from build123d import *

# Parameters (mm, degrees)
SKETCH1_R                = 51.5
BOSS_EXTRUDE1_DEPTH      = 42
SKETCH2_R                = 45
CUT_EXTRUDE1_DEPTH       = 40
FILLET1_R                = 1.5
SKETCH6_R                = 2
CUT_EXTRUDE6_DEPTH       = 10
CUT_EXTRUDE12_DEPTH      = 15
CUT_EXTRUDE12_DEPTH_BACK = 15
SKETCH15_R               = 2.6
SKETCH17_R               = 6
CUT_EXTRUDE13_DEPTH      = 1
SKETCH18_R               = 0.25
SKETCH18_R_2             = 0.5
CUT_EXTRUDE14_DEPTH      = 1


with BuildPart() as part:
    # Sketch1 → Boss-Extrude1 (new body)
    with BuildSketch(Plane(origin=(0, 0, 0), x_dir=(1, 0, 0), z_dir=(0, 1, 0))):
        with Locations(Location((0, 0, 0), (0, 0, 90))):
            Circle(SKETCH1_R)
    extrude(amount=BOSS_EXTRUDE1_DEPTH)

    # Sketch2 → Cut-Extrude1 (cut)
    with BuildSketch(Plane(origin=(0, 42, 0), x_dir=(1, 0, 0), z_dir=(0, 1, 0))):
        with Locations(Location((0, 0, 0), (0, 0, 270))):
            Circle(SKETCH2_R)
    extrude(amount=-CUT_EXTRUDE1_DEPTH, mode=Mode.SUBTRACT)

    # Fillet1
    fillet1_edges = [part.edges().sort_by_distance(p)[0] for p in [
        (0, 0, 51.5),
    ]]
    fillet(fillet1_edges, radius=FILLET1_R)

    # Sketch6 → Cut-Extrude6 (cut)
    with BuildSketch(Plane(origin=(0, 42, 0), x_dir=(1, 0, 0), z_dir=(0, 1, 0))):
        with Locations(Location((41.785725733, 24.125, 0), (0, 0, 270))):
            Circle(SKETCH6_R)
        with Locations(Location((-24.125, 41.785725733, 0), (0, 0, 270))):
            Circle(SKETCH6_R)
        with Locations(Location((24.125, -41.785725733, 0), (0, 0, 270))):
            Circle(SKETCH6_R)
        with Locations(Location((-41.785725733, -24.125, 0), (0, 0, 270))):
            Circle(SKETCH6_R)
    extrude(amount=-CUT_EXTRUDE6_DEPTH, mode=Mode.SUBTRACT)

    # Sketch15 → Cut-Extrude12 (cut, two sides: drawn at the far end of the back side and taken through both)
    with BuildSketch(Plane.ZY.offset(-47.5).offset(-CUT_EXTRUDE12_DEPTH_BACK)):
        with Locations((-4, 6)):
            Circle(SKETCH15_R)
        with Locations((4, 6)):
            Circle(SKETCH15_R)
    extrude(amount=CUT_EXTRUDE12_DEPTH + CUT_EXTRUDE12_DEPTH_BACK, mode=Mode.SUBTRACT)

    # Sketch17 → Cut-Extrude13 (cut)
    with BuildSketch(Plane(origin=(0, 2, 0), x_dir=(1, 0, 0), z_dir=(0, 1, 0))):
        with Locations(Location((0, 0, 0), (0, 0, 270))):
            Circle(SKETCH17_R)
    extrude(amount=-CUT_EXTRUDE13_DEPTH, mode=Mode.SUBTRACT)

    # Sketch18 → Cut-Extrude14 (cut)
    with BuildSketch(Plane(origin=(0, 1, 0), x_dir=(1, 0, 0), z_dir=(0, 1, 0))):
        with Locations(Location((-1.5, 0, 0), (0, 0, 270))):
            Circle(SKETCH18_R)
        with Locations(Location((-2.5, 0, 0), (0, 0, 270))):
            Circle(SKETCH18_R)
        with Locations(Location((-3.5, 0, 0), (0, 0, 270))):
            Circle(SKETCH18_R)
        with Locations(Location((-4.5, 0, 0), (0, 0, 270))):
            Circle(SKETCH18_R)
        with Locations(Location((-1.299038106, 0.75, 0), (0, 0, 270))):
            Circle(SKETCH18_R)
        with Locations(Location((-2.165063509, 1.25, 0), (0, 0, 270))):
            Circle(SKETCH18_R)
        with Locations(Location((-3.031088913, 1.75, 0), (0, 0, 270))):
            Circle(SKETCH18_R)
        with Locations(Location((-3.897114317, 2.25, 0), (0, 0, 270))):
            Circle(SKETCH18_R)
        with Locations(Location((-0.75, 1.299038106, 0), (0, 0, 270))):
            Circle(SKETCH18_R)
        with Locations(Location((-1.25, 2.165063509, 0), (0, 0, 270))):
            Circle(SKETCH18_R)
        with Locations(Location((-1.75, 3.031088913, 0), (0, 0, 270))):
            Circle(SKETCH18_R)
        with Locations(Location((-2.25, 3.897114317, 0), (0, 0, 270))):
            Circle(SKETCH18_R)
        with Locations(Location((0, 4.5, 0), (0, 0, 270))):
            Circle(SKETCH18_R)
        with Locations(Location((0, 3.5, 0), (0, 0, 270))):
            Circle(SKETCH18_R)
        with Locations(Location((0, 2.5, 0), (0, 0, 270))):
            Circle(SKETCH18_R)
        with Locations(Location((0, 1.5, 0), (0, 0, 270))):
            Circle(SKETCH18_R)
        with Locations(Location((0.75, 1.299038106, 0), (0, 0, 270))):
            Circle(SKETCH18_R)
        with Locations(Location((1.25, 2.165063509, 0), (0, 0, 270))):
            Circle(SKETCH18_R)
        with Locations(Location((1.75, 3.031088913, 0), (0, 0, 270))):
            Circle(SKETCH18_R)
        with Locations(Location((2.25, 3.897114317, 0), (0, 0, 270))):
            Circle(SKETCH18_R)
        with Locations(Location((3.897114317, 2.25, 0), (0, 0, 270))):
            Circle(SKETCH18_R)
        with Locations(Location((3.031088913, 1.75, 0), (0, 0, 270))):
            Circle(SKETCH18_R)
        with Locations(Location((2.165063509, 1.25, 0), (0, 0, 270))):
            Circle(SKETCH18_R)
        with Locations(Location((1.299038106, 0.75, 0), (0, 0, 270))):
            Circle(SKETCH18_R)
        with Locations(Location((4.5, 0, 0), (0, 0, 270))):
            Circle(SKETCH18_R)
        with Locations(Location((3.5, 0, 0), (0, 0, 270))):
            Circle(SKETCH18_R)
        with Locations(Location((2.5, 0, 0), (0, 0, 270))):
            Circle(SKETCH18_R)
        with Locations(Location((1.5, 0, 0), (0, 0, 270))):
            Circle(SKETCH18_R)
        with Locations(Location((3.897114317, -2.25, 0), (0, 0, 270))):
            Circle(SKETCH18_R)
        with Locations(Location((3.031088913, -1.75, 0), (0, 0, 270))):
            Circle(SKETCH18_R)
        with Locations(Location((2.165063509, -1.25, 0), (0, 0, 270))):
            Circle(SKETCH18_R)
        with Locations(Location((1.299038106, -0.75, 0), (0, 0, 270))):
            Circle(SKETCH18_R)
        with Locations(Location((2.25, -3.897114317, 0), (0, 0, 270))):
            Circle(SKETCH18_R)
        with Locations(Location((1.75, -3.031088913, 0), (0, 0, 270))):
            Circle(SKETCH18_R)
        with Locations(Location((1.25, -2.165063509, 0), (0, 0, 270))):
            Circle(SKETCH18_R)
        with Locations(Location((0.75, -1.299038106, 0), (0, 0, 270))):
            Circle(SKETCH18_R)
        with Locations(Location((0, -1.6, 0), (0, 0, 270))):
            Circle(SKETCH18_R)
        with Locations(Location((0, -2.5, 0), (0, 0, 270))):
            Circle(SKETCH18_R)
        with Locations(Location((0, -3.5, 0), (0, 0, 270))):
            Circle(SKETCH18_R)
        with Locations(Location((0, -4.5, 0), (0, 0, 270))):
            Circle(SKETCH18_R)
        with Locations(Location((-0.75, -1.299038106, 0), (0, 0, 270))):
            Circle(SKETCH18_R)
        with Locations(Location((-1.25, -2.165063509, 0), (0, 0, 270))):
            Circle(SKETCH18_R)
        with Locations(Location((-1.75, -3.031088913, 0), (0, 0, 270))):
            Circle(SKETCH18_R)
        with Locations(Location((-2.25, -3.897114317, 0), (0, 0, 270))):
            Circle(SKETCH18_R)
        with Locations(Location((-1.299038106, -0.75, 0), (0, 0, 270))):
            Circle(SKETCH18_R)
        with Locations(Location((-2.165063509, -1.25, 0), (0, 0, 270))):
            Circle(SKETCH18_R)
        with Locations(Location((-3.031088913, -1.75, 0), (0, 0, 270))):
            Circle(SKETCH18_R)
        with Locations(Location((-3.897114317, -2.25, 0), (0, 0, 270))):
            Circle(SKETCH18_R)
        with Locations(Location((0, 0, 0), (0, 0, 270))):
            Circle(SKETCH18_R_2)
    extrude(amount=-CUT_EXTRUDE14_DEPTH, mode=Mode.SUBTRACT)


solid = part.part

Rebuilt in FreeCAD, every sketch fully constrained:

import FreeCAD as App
import Part
import Sketcher

V = App.Vector


def edges_at(feature, points):
    """Names of the edges that pass closest to the given points."""
    edges = feature.Shape.Edges
    near = lambda p: min(range(len(edges)), key=lambda i: edges[i].distToShape(Part.Vertex(*p))[0])
    return sorted({f"Edge{near(p) + 1}" for p in points})

doc = App.newDocument("Part")
params = doc.addObject("Spreadsheet::Sheet", "Params")
for row, (alias, value) in enumerate([
    ("sketch1_diameter", "103 mm"),
    ("pad1_length", "42 mm"),
    ("sketch2_diameter", "90 mm"),
    ("pocket1_length", "40 mm"),
    ("fillet_radius", "1.5 mm"),
    ("sketch3_diameter", "4 mm"),
    ("pocket2_length", "10 mm"),
    ("sketch4_diameter", "5.2 mm"),
    ("pocket3_length", "15 mm"),
    ("pocket3_length2", "15 mm"),
    ("sketch5_diameter", "12 mm"),
    ("pocket4_length", "1 mm"),
    ("sketch6_diameter", "1 mm"),
    ("sketch6_diameter2", "0.5 mm"),
    ("pocket5_length", "1 mm"),
], start=1):
    params.set(f"A{row}", alias)
    params.set(f"B{row}", "=" + value)
    params.setAlias(f"B{row}", alias)

body = doc.addObject("PartDesign::Body", "Body")

# Sketch on XZ plane
sketch1 = doc.addObject("Sketcher::SketchObject", "Sketch")
body.addObject(sketch1)
sketch1.AttachmentSupport = (doc.XZ_Plane, [""])
sketch1.MapMode = "FlatFace"
sketch1.addGeometry(Part.Circle(V(0, 0, 0), V(0, 0, 1), 52), False)
sketch1.addConstraint([
    Sketcher.Constraint("Coincident", 0, 3, -1, 1),
    Sketcher.Constraint("Diameter", 0, 103.0),
])
sketch1.setExpression("Constraints[1]", "Params.sketch1_diameter")
pad1 = doc.addObject("PartDesign::Pad", "Pad")
body.addObject(pad1)
pad1.Profile = sketch1
pad1.setExpression("Length", "Params.pad1_length")
pad1.Reversed = True

# Sketch on XZ plane
sketch2 = doc.addObject("Sketcher::SketchObject", "Sketch001")
body.addObject(sketch2)
sketch2.AttachmentSupport = (doc.XZ_Plane, [""])
sketch2.MapMode = "FlatFace"
sketch2.AttachmentOffset = App.Placement(V(0, 0, -42), App.Rotation())
sketch2.addGeometry(Part.Circle(V(0, 0, 0), V(0, 0, 1), 45), False)
sketch2.addConstraint([
    Sketcher.Constraint("Coincident", 0, 3, -1, 1),
    Sketcher.Constraint("Diameter", 0, 90.0),
])
sketch2.setExpression("Constraints[1]", "Params.sketch2_diameter")
pocket1 = doc.addObject("PartDesign::Pocket", "Pocket")
body.addObject(pocket1)
pocket1.Profile = sketch2
pocket1.setExpression("Length", "Params.pocket1_length")
pocket1.Reversed = True
doc.recompute()

fillet = doc.addObject("PartDesign::Fillet", "Fillet")
body.addObject(fillet)
fillet.Base = (pocket1, edges_at(pocket1, [(0, 0, 51.5)]))
fillet.setExpression("Radius", "Params.fillet_radius")

# Sketch on XZ plane
sketch3 = doc.addObject("Sketcher::SketchObject", "Sketch002")
body.addObject(sketch3)
sketch3.AttachmentSupport = (doc.XZ_Plane, [""])
sketch3.MapMode = "FlatFace"
sketch3.AttachmentOffset = App.Placement(V(0, 0, -42), App.Rotation())
sketch3.addGeometry([
    Part.Circle(V(41.8, -24.1, 0), V(0, 0, 1), 2),
    Part.Circle(V(-24.1, -41.8, 0), V(0, 0, 1), 2),
    Part.Circle(V(24.1, 41.8, 0), V(0, 0, 1), 2),
    Part.Circle(V(-41.8, 24.1, 0), V(0, 0, 1), 2),
], False)
sketch3.addConstraint([
    Sketcher.Constraint("Equal", 0, 1),
    Sketcher.Constraint("Equal", 1, 2),
    Sketcher.Constraint("Equal", 2, 3),
    Sketcher.Constraint("Symmetric", 1, 3, 2, 3, -1, 1),
    Sketcher.Constraint("Symmetric", 0, 3, 3, 3, -1, 1),
    Sketcher.Constraint("Diameter", 0, 4.0),
    Sketcher.Constraint("DistanceX", 1, 3, 2, 3, 48.25),
    Sketcher.Constraint("DistanceY", 0, 3, 3, 3, 48.25),
    Sketcher.Constraint("DistanceY", 1, 3, 2, 3, 83.571451),
    Sketcher.Constraint("DistanceX", 3, 3, 0, 3, 83.571451),
])
sketch3.setExpression("Constraints[5]", "Params.sketch3_diameter")
pocket2 = doc.addObject("PartDesign::Pocket", "Pocket001")
body.addObject(pocket2)
pocket2.Profile = sketch3
pocket2.setExpression("Length", "Params.pocket2_length")
pocket2.Reversed = True

# Sketch on YZ plane
sketch4 = doc.addObject("Sketcher::SketchObject", "Sketch003")
body.addObject(sketch4)
sketch4.AttachmentSupport = (doc.YZ_Plane, [""])
sketch4.MapMode = "FlatFace"
sketch4.AttachmentOffset = App.Placement(V(0, 0, 47.5), App.Rotation())
sketch4.addGeometry([
    Part.Circle(V(6, -4, 0), V(0, 0, 1), 2.6),
    Part.Circle(V(6, 4, 0), V(0, 0, 1), 2.6),
], False)
sketch4.addConstraint([
    Sketcher.Constraint("Equal", 0, 1),
    Sketcher.Constraint("Symmetric", 0, 3, 1, 3, -1),
    Sketcher.Constraint("Diameter", 0, 5.2),
    Sketcher.Constraint("DistanceX", -1, 1, 0, 3, 6.0),
    Sketcher.Constraint("DistanceY", 0, 3, -1, 1, 4.0),
])
sketch4.setExpression("Constraints[2]", "Params.sketch4_diameter")
pocket3 = doc.addObject("PartDesign::Pocket", "Pocket002")
body.addObject(pocket3)
pocket3.Profile = sketch4
pocket3.Type = "TwoLengths"
pocket3.setExpression("Length", "Params.pocket3_length")
pocket3.setExpression("Length2", "Params.pocket3_length2")

# Sketch on XZ plane
sketch5 = doc.addObject("Sketcher::SketchObject", "Sketch004")
body.addObject(sketch5)
sketch5.AttachmentSupport = (doc.XZ_Plane, [""])
sketch5.MapMode = "FlatFace"
sketch5.AttachmentOffset = App.Placement(V(0, 0, -2), App.Rotation())
sketch5.addGeometry(Part.Circle(V(0, 0, 0), V(0, 0, 1), 6), False)
sketch5.addConstraint([
    Sketcher.Constraint("Coincident", 0, 3, -1, 1),
    Sketcher.Constraint("Diameter", 0, 12.0),
])
sketch5.setExpression("Constraints[1]", "Params.sketch5_diameter")
pocket4 = doc.addObject("PartDesign::Pocket", "Pocket003")
body.addObject(pocket4)
pocket4.Profile = sketch5
pocket4.setExpression("Length", "Params.pocket4_length")
pocket4.Reversed = True

# Sketch on XZ plane
sketch6 = doc.addObject("Sketcher::SketchObject", "Sketch005")
body.addObject(sketch6)
sketch6.AttachmentSupport = (doc.XZ_Plane, [""])
sketch6.MapMode = "FlatFace"
sketch6.AttachmentOffset = App.Placement(V(0, 0, -1), App.Rotation())
sketch6.addGeometry([
    Part.Circle(V(-1.5, 0, 0), V(0, 0, 1), 0.25),  # 0
    Part.Circle(V(-2.5, 0, 0), V(0, 0, 1), 0.25),  # 1
    Part.Circle(V(-3.5, 0, 0), V(0, 0, 1), 0.25),  # 2
    Part.Circle(V(-4.5, 0, 0), V(0, 0, 1), 0.25),  # 3
    Part.Circle(V(-1.3, -0.75, 0), V(0, 0, 1), 0.25),  # 4
    Part.Circle(V(-2.17, -1.25, 0), V(0, 0, 1), 0.25),  # 5
    Part.Circle(V(-3.03, -1.75, 0), V(0, 0, 1), 0.25),  # 6
    Part.Circle(V(-3.9, -2.25, 0), V(0, 0, 1), 0.25),  # 7
    Part.Circle(V(-0.75, -1.3, 0), V(0, 0, 1), 0.25),  # 8
    Part.Circle(V(-1.25, -2.17, 0), V(0, 0, 1), 0.25),  # 9
    Part.Circle(V(-1.75, -3.03, 0), V(0, 0, 1), 0.25),  # 10
    Part.Circle(V(-2.25, -3.9, 0), V(0, 0, 1), 0.25),  # 11
    Part.Circle(V(0, -4.5, 0), V(0, 0, 1), 0.25),  # 12
    Part.Circle(V(0, -3.5, 0), V(0, 0, 1), 0.25),  # 13
    Part.Circle(V(0, -2.5, 0), V(0, 0, 1), 0.25),  # 14
    Part.Circle(V(0, -1.5, 0), V(0, 0, 1), 0.25),  # 15
    Part.Circle(V(0.75, -1.3, 0), V(0, 0, 1), 0.25),  # 16
    Part.Circle(V(1.25, -2.17, 0), V(0, 0, 1), 0.25),  # 17
    Part.Circle(V(1.75, -3.03, 0), V(0, 0, 1), 0.25),  # 18
    Part.Circle(V(2.25, -3.9, 0), V(0, 0, 1), 0.25),  # 19
    Part.Circle(V(3.9, -2.25, 0), V(0, 0, 1), 0.25),  # 20
    Part.Circle(V(3.03, -1.75, 0), V(0, 0, 1), 0.25),  # 21
    Part.Circle(V(2.17, -1.25, 0), V(0, 0, 1), 0.25),  # 22
    Part.Circle(V(1.3, -0.75, 0), V(0, 0, 1), 0.25),  # 23
    Part.Circle(V(4.5, 0, 0), V(0, 0, 1), 0.25),  # 24
    Part.Circle(V(3.5, 0, 0), V(0, 0, 1), 0.25),  # 25
    Part.Circle(V(2.5, 0, 0), V(0, 0, 1), 0.25),  # 26
    Part.Circle(V(1.5, 0, 0), V(0, 0, 1), 0.25),  # 27
    Part.Circle(V(3.9, 2.25, 0), V(0, 0, 1), 0.25),  # 28
    Part.Circle(V(3.03, 1.75, 0), V(0, 0, 1), 0.25),  # 29
    Part.Circle(V(2.17, 1.25, 0), V(0, 0, 1), 0.25),  # 30
    Part.Circle(V(1.3, 0.75, 0), V(0, 0, 1), 0.25),  # 31
    Part.Circle(V(2.25, 3.9, 0), V(0, 0, 1), 0.25),  # 32
    Part.Circle(V(1.75, 3.03, 0), V(0, 0, 1), 0.25),  # 33
    Part.Circle(V(1.25, 2.17, 0), V(0, 0, 1), 0.25),  # 34
    Part.Circle(V(0.75, 1.3, 0), V(0, 0, 1), 0.25),  # 35
    Part.Circle(V(0, 1.6, 0), V(0, 0, 1), 0.25),  # 36
    Part.Circle(V(0, 2.5, 0), V(0, 0, 1), 0.25),  # 37
    Part.Circle(V(0, 3.5, 0), V(0, 0, 1), 0.25),  # 38
    Part.Circle(V(0, 4.5, 0), V(0, 0, 1), 0.25),  # 39
    Part.Circle(V(-0.75, 1.3, 0), V(0, 0, 1), 0.25),  # 40
    Part.Circle(V(-1.25, 2.17, 0), V(0, 0, 1), 0.25),  # 41
    Part.Circle(V(-1.75, 3.03, 0), V(0, 0, 1), 0.25),  # 42
    Part.Circle(V(-2.25, 3.9, 0), V(0, 0, 1), 0.25),  # 43
    Part.Circle(V(-1.3, 0.75, 0), V(0, 0, 1), 0.25),  # 44
    Part.Circle(V(-2.17, 1.25, 0), V(0, 0, 1), 0.25),  # 45
    Part.Circle(V(-3.03, 1.75, 0), V(0, 0, 1), 0.25),  # 46
    Part.Circle(V(-3.9, 2.25, 0), V(0, 0, 1), 0.25),  # 47
    Part.Circle(V(0, 0, 0), V(0, 0, 1), 0.5),  # 48
], False)
sketch6.addConstraint([
    Sketcher.Constraint("Coincident", 48, 3, -1, 1),
    Sketcher.Constraint("Equal", 0, 1),
    Sketcher.Constraint("Equal", 1, 2),
    Sketcher.Constraint("Equal", 2, 3),
    Sketcher.Constraint("Equal", 3, 4),
    Sketcher.Constraint("Equal", 4, 5),
    Sketcher.Constraint("Equal", 5, 6),
    Sketcher.Constraint("Equal", 6, 7),
    Sketcher.Constraint("Equal", 7, 8),
    Sketcher.Constraint("Equal", 8, 9),
    Sketcher.Constraint("Equal", 9, 10),
    Sketcher.Constraint("Equal", 10, 11),
    Sketcher.Constraint("Equal", 11, 12),
    Sketcher.Constraint("Equal", 12, 13),
    Sketcher.Constraint("Equal", 13, 14),
    Sketcher.Constraint("Equal", 14, 15),
    Sketcher.Constraint("Equal", 15, 16),
    Sketcher.Constraint("Equal", 16, 17),
    Sketcher.Constraint("Equal", 17, 18),
    Sketcher.Constraint("Equal", 18, 19),
    Sketcher.Constraint("Equal", 19, 20),
    Sketcher.Constraint("Equal", 20, 21),
    Sketcher.Constraint("Equal", 21, 22),
    Sketcher.Constraint("Equal", 22, 23),
    Sketcher.Constraint("Equal", 23, 24),
    Sketcher.Constraint("Equal", 24, 25),
    Sketcher.Constraint("Equal", 25, 26),
    Sketcher.Constraint("Equal", 26, 27),
    Sketcher.Constraint("Equal", 27, 28),
    Sketcher.Constraint("Equal", 28, 29),
    Sketcher.Constraint("Equal", 29, 30),
    Sketcher.Constraint("Equal", 30, 31),
    Sketcher.Constraint("Equal", 31, 32),
    Sketcher.Constraint("Equal", 32, 33),
    Sketcher.Constraint("Equal", 33, 34),
    Sketcher.Constraint("Equal", 34, 35),
    Sketcher.Constraint("Equal", 35, 36),
    Sketcher.Constraint("Equal", 36, 37),
    Sketcher.Constraint("Equal", 37, 38),
    Sketcher.Constraint("Equal", 38, 39),
    Sketcher.Constraint("Equal", 39, 40),
    Sketcher.Constraint("Equal", 40, 41),
    Sketcher.Constraint("Equal", 41, 42),
    Sketcher.Constraint("Equal", 42, 43),
    Sketcher.Constraint("Equal", 43, 44),
    Sketcher.Constraint("Equal", 44, 45),
    Sketcher.Constraint("Equal", 45, 46),
    Sketcher.Constraint("Equal", 46, 47),
    Sketcher.Constraint("Symmetric", 3, 3, 24, 3, -1, 1),
    Sketcher.Constraint("Symmetric", 2, 3, 25, 3, -1, 1),
    Sketcher.Constraint("Symmetric", 1, 3, 26, 3, -1, 1),
    Sketcher.Constraint("Symmetric", 0, 3, 27, 3, -1, 1),
    Sketcher.Constraint("Symmetric", 7, 3, 28, 3, -1, 1),
    Sketcher.Constraint("Symmetric", 6, 3, 29, 3, -1, 1),
    Sketcher.Constraint("Symmetric", 5, 3, 30, 3, -1, 1),
    Sketcher.Constraint("Symmetric", 4, 3, 31, 3, -1, 1),
    Sketcher.Constraint("Symmetric", 11, 3, 32, 3, -1, 1),
    Sketcher.Constraint("Symmetric", 10, 3, 33, 3, -1, 1),
    Sketcher.Constraint("Symmetric", 9, 3, 34, 3, -1, 1),
    Sketcher.Constraint("Symmetric", 8, 3, 35, 3, -1, 1),
    Sketcher.Constraint("Symmetric", 14, 3, 37, 3, -1, 1),
    Sketcher.Constraint("Symmetric", 13, 3, 38, 3, -1, 1),
    Sketcher.Constraint("Symmetric", 12, 3, 39, 3, -1, 1),
    Sketcher.Constraint("Symmetric", 16, 3, 40, 3, -1, 1),
    Sketcher.Constraint("Symmetric", 17, 3, 41, 3, -1, 1),
    Sketcher.Constraint("Symmetric", 18, 3, 42, 3, -1, 1),
    Sketcher.Constraint("Symmetric", 19, 3, 43, 3, -1, 1),
    Sketcher.Constraint("Symmetric", 23, 3, 44, 3, -1, 1),
    Sketcher.Constraint("Symmetric", 22, 3, 45, 3, -1, 1),
    Sketcher.Constraint("Symmetric", 21, 3, 46, 3, -1, 1),
    Sketcher.Constraint("Symmetric", 20, 3, 47, 3, -1, 1),
    Sketcher.Constraint("Symmetric", 8, 3, 16, 3, -2),
    Sketcher.Constraint("Symmetric", 9, 3, 17, 3, -2),
    Sketcher.Constraint("Symmetric", 10, 3, 18, 3, -2),
    Sketcher.Constraint("Symmetric", 11, 3, 19, 3, -2),
    Sketcher.Constraint("Symmetric", 7, 3, 20, 3, -2),
    Sketcher.Constraint("Symmetric", 6, 3, 21, 3, -2),
    Sketcher.Constraint("Symmetric", 5, 3, 22, 3, -2),
    Sketcher.Constraint("Symmetric", 4, 3, 23, 3, -2),
    Sketcher.Constraint("PointOnObject", 0, 3, -1),
    Sketcher.Constraint("PointOnObject", 1, 3, -1),
    Sketcher.Constraint("PointOnObject", 2, 3, -1),
    Sketcher.Constraint("PointOnObject", 3, 3, -1),
    Sketcher.Constraint("PointOnObject", 12, 3, -2),
    Sketcher.Constraint("PointOnObject", 13, 3, -2),
    Sketcher.Constraint("PointOnObject", 14, 3, -2),
    Sketcher.Constraint("PointOnObject", 15, 3, -2),
    Sketcher.Constraint("PointOnObject", 36, 3, -2),
    Sketcher.Constraint("Diameter", 48, 1.0),
    Sketcher.Constraint("Diameter", 0, 0.5),
    Sketcher.Constraint("DistanceX", 1, 3, 0, 3, 1.0),
    Sketcher.Constraint("DistanceX", 2, 3, 1, 3, 1.0),
    Sketcher.Constraint("DistanceX", 3, 3, 2, 3, 1.0),
    Sketcher.Constraint("DistanceY", 6, 3, 4, 3, 1.0),
    Sketcher.Constraint("DistanceY", 7, 3, 5, 3, 1.0),
    Sketcher.Constraint("DistanceX", 10, 3, 8, 3, 1.0),
    Sketcher.Constraint("DistanceX", 11, 3, 9, 3, 1.0),
    Sketcher.Constraint("DistanceY", 12, 3, 13, 3, 1.0),
    Sketcher.Constraint("DistanceY", 13, 3, 14, 3, 1.0),
    Sketcher.Constraint("DistanceY", 14, 3, 15, 3, 1.0),
    Sketcher.Constraint("DistanceX", 9, 3, 16, 3, 2.0),
    Sketcher.Constraint("DistanceX", 0, 3, -1, 1, 1.5),
    Sketcher.Constraint("DistanceY", 12, 3, -1, 1, 4.5),
    Sketcher.Constraint("DistanceY", -1, 1, 36, 3, 1.6),
    Sketcher.Constraint("DistanceY", 5, 3, 4, 3, 0.5),
    Sketcher.Constraint("DistanceX", 9, 3, 8, 3, 0.5),
    Sketcher.Constraint("DistanceY", 22, 3, 28, 3, 3.5),
    Sketcher.Constraint("DistanceX", 4, 3, -1, 1, 1.299038),
    Sketcher.Constraint("DistanceX", 6, 3, -1, 1, 3.031089),
    Sketcher.Constraint("DistanceY", 8, 3, -1, 1, 1.299038),
    Sketcher.Constraint("DistanceY", 10, 3, -1, 1, 3.031089),
    Sketcher.Constraint("DistanceX", 7, 3, 5, 3, 1.732051),
    Sketcher.Constraint("DistanceY", 11, 3, 9, 3, 1.732051),
    Sketcher.Constraint("DistanceX", 5, 3, -1, 1, 2.165064),
    Sketcher.Constraint("DistanceY", 9, 3, -1, 1, 2.165064),
])
sketch6.setExpression("Constraints[88]", "Params.sketch6_diameter")
sketch6.setExpression("Constraints[89]", "Params.sketch6_diameter2")
pocket5 = doc.addObject("PartDesign::Pocket", "Pocket004")
body.addObject(pocket5)
pocket5.Profile = sketch6
pocket5.setExpression("Length", "Params.pocket5_length")
pocket5.Reversed = True

doc.recompute()
